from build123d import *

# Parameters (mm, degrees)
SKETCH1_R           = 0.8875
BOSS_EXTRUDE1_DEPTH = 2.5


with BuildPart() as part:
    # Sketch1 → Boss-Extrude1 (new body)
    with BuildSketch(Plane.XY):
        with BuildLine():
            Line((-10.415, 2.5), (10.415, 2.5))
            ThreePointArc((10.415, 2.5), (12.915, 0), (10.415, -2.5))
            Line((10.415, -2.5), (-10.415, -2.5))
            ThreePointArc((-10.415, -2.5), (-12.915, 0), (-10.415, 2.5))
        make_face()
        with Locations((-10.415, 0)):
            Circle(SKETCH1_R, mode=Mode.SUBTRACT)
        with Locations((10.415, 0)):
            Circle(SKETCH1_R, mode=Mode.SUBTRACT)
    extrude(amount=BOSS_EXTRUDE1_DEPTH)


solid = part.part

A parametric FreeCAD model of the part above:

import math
import FreeCAD as App
import Part
import Sketcher

V = App.Vector

doc = App.newDocument("Part")
body = doc.addObject("PartDesign::Body", "Body")

# Sketch on XY plane
sketch1 = doc.addObject("Sketcher::SketchObject", "Sketch")
body.addObject(sketch1)
sketch1.AttachmentSupport = (doc.XY_Plane, [""])
sketch1.MapMode = "FlatFace"
sketch1.addGeometry([
    Part.LineSegment(V(10.4, 2.5, 0), V(-10.4, 2.5, 0)),  # 0
    Part.ArcOfCircle(Part.Circle(V(-10.4, 0, 0), V(0, 0, 1), 2.5), math.radians(90), math.radians(270)),  # 1
    Part.LineSegment(V(-10.4, -2.5, 0), V(10.4, -2.5, 0)),  # 2
    Part.ArcOfCircle(Part.Circle(V(10.4, 0, 0), V(0, 0, 1), 2.5), math.radians(-90), math.radians(90)),  # 3
    Part.Circle(V(10.4, 0, 0), V(0, 0, 1), 0.9),  # 4
    Part.Circle(V(-10.4, 0, 0), V(0, 0, 1), 0.9),  # 5
], False)
sketch1.addConstraint([
    Sketcher.Constraint("Tangent", 0, 2, 1, 1),
    Sketcher.Constraint("Tangent", 1, 2, 2, 1),
    Sketcher.Constraint("Tangent", 2, 2, 3, 1),
    Sketcher.Constraint("Tangent", 3, 2, 0, 1),
    Sketcher.Constraint("Horizontal", 0),
    Sketcher.Constraint("Horizontal", 2),
    Sketcher.Constraint("Coincident", 4, 3, 3, 3),
    Sketcher.Constraint("Coincident", 5, 3, 1, 3),
    Sketcher.Constraint("Equal", 4, 5),
    Sketcher.Constraint("Symmetric", 1, 3, 3, 3, -1, 1),
    Sketcher.Constraint("Radius", 1, 2.5),
    Sketcher.Constraint("Diameter", 4, 1.775),
    Sketcher.Constraint("DistanceX", 0, 2, 0, 1, 20.83),
])
pad1 = doc.addObject("PartDesign::Pad", "Pad")
body.addObject(pad1)
pad1.Profile = sketch1
pad1.Length = 2.5

doc.recompute()
